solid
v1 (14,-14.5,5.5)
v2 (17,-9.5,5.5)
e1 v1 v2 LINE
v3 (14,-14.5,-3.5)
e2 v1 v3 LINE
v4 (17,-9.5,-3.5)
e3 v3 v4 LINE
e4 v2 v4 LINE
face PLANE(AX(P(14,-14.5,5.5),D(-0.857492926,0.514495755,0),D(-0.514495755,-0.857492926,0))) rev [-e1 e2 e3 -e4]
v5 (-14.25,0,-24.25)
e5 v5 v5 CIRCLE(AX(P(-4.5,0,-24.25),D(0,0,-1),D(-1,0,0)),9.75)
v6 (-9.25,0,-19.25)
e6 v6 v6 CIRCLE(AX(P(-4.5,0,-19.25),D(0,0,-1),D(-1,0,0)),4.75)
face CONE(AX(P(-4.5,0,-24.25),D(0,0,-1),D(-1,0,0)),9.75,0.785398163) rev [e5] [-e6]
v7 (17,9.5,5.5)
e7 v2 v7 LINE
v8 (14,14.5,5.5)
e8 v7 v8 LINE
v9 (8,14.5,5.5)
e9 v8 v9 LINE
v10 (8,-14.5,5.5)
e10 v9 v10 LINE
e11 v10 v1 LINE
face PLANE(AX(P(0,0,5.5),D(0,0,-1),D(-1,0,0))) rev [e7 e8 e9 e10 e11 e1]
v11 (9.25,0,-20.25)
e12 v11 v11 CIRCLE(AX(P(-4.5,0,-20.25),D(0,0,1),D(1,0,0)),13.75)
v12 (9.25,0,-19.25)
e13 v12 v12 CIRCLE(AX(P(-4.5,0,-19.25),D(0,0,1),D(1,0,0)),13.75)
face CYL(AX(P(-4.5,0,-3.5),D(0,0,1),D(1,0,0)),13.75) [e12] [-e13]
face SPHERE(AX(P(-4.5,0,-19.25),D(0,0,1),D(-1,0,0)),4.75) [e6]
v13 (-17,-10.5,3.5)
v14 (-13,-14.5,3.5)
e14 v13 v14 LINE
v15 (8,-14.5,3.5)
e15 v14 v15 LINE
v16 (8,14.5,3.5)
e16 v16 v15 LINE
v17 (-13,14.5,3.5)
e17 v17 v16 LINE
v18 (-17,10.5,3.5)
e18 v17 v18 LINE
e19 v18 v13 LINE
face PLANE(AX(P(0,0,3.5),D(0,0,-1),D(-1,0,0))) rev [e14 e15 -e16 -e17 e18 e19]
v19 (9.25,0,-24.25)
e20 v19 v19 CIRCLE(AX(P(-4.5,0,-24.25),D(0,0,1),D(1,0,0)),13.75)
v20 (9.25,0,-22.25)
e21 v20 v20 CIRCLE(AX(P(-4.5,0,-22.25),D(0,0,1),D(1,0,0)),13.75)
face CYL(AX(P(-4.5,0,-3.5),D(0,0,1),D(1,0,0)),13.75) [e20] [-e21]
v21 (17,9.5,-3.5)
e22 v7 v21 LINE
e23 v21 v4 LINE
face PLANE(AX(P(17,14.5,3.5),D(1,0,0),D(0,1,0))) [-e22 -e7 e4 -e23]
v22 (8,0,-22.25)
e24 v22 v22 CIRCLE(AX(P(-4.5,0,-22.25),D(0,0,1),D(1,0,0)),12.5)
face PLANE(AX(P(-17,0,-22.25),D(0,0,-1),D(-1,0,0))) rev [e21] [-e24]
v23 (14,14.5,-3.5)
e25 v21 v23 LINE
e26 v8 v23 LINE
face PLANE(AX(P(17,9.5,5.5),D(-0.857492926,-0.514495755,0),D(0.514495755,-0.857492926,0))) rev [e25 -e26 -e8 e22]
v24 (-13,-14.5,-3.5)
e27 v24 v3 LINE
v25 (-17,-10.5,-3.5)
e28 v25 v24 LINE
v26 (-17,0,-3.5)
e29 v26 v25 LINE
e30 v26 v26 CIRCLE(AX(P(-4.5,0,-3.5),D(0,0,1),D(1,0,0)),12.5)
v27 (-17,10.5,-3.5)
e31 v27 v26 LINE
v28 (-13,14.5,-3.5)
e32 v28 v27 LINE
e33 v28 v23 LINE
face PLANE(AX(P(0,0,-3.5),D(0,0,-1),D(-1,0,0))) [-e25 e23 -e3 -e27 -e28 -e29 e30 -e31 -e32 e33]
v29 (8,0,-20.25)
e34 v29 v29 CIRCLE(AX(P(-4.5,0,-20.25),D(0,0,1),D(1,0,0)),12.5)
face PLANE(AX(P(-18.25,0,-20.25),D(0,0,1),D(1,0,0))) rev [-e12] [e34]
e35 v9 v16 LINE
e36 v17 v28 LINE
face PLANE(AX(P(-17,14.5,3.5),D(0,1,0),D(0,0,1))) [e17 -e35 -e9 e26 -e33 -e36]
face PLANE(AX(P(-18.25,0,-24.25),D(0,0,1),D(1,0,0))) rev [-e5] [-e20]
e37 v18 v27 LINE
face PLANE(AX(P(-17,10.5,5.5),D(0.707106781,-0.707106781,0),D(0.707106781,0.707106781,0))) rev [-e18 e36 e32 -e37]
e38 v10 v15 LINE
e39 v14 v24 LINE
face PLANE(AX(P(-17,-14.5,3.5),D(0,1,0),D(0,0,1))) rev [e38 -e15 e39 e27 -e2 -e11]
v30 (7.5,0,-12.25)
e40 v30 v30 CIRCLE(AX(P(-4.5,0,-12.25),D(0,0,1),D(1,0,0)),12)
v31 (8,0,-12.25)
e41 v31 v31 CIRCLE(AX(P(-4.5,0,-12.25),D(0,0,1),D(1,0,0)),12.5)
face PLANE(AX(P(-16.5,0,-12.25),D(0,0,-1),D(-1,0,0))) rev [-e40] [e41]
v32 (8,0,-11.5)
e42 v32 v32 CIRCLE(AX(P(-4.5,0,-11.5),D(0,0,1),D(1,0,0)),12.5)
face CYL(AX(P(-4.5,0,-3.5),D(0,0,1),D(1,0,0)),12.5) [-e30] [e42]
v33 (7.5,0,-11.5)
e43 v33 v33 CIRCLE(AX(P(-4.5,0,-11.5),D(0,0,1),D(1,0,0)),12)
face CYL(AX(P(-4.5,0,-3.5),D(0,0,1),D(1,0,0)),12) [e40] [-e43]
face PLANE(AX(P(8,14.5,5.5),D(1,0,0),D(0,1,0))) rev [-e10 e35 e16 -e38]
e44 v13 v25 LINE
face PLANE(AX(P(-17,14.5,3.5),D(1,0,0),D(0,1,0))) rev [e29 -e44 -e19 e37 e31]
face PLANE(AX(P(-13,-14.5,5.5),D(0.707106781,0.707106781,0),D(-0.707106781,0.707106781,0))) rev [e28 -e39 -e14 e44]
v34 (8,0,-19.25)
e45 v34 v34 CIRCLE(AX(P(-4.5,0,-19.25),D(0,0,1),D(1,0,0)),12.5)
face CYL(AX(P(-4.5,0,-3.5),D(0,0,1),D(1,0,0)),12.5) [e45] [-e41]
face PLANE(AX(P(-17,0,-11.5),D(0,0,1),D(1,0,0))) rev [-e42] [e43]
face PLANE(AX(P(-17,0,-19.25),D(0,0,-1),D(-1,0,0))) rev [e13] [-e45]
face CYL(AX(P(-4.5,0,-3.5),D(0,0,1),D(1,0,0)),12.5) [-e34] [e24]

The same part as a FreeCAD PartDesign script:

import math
import FreeCAD as App
import Part
import Sketcher

V = App.Vector
Q = App.Units.Quantity


def faces_at(feature, points):
    """Names of the faces that lie closest to the given points."""
    faces = feature.Shape.Faces
    near = lambda p: min(range(len(faces)), key=lambda i: faces[i].distToShape(Part.Vertex(*p))[0])
    return sorted({f"Face{near(p) + 1}" for p in points})

doc = App.newDocument("Part")
body = doc.addObject("PartDesign::Body", "Body")

# Sketch on XY plane
sketch1 = body.newObject("Sketcher::SketchObject", "Sketch")
sketch1.AttachmentSupport = (doc.getObject("XY_Plane"), [""])
sketch1.MapMode = "FlatFace"
sketch1.addGeometry(Part.LineSegment(V(-17, 14.5, 0), V(-17, -14.5, 0)), False)
sketch1.addGeometry(Part.LineSegment(V(-17, -14.5, 0), V(17, -14.5, 0)), False)
sketch1.addGeometry(Part.LineSegment(V(17, -14.5, 0), V(17, 14.5, 0)), False)
sketch1.addGeometry(Part.LineSegment(V(17, 14.5, 0), V(-17, 14.5, 0)), False)
sketch1.addConstraint(Sketcher.Constraint("Coincident", 0, 2, 1, 1))
sketch1.addConstraint(Sketcher.Constraint("Coincident", 1, 2, 2, 1))
sketch1.addConstraint(Sketcher.Constraint("Coincident", 2, 2, 3, 1))
sketch1.addConstraint(Sketcher.Constraint("Coincident", 3, 2, 0, 1))
sketch1.addConstraint(Sketcher.Constraint("Vertical", 0))
sketch1.addConstraint(Sketcher.Constraint("Horizontal", 1))
sketch1.addConstraint(Sketcher.Constraint("Vertical", 2))
sketch1.addConstraint(Sketcher.Constraint("Horizontal", 3))
sketch1.addConstraint(Sketcher.Constraint("Symmetric", 0, 2, 2, 2, -1, 1))
sketch1.addConstraint(Sketcher.Constraint("DistanceX", 1, 1, 1, 2, Q("34 mm")))
sketch1.addConstraint(Sketcher.Constraint("DistanceY", 0, 2, 0, 1, Q("29 mm")))
pad1 = body.newObject("PartDesign::Pad", "Pad")
pad1.Profile = sketch1
pad1.Length = 7
pad1.Midplane = True

# Sketch on XY plane
sketch2 = body.newObject("Sketcher::SketchObject", "Sketch001")
sketch2.AttachmentSupport = (doc.getObject("XY_Plane"), [""])
sketch2.MapMode = "FlatFace"
sketch2.AttachmentOffset = App.Placement(V(0, 0, 3.5), App.Rotation())
sketch2.addGeometry(Part.LineSegment(V(8, 14.5, 0), V(8, -14.5, 0)), False)
sketch2.addGeometry(Part.LineSegment(V(8, -14.5, 0), V(17, -14.5, 0)), False)
sketch2.addGeometry(Part.LineSegment(V(17, -14.5, 0), V(17, 14.5, 0)), False)
sketch2.addGeometry(Part.LineSegment(V(17, 14.5, 0), V(8, 14.5, 0)), False)
sketch2.addConstraint(Sketcher.Constraint("Coincident", 0, 2, 1, 1))
sketch2.addConstraint(Sketcher.Constraint("Coincident", 1, 2, 2, 1))
sketch2.addConstraint(Sketcher.Constraint("Coincident", 2, 2, 3, 1))
sketch2.addConstraint(Sketcher.Constraint("Coincident", 3, 2, 0, 1))
sketch2.addConstraint(Sketcher.Constraint("Vertical", 0))
sketch2.addConstraint(Sketcher.Constraint("Horizontal", 1))
sketch2.addConstraint(Sketcher.Constraint("Vertical", 2))
sketch2.addConstraint(Sketcher.Constraint("Horizontal", 3))
sketch2.addConstraint(Sketcher.Constraint("DistanceX", 1, 1, 1, 2, Q("9 mm")))
sketch2.addConstraint(Sketcher.Constraint("DistanceY", 0, 2, 0, 1, Q("29 mm")))
sketch2.addConstraint(Sketcher.Constraint("DistanceX", -1, 1, 0, 2, Q("8 mm")))
sketch2.addConstraint(Sketcher.Constraint("DistanceY", 0, 2, -1, 1, Q("14.5 mm")))
pad2 = body.newObject("PartDesign::Pad", "Pad001")
pad2.Profile = sketch2
pad2.Length = 2

# Sketch on XY plane
sketch3 = body.newObject("Sketcher::SketchObject", "Sketch002")
sketch3.AttachmentSupport = (doc.getObject("XY_Plane"), [""])
sketch3.MapMode = "FlatFace"
sketch3.AttachmentOffset = App.Placement(V(0, 0, -3.5), App.Rotation())
sketch3.addGeometry(Part.LineSegment(V(14, -14.5, 0), V(17, -9.5, 0)), False)
sketch3.addGeometry(Part.LineSegment(V(17, -9.5, 0), V(17, -14.5, 0)), False)
sketch3.addGeometry(Part.LineSegment(V(17, -14.5, 0), V(14, -14.5, 0)), False)
sketch3.addGeometry(Part.LineSegment(V(-17, -10.5, 0), V(-13, -14.5, 0)), False)
sketch3.addGeometry(Part.LineSegment(V(-13, -14.5, 0), V(-17, -14.5, 0)), False)
sketch3.addGeometry(Part.LineSegment(V(-17, -14.5, 0), V(-17, -10.5, 0)), False)
sketch3.addGeometry(Part.LineSegment(V(-13, 14.5, 0), V(-17, 10.5, 0)), False)
sketch3.addGeometry(Part.LineSegment(V(-17, 10.5, 0), V(-17, 14.5, 0)), False)
sketch3.addGeometry(Part.LineSegment(V(-17, 14.5, 0), V(-13, 14.5, 0)), False)
sketch3.addGeometry(Part.LineSegment(V(17, 9.5, 0), V(14, 14.5, 0)), False)
sketch3.addGeometry(Part.LineSegment(V(14, 14.5, 0), V(17, 14.5, 0)), False)
sketch3.addGeometry(Part.LineSegment(V(17, 14.5, 0), V(17, 9.5, 0)), False)
sketch3.addConstraint(Sketcher.Constraint("Coincident", 0, 2, 1, 1))
sketch3.addConstraint(Sketcher.Constraint("Coincident", 1, 2, 2, 1))
sketch3.addConstraint(Sketcher.Constraint("Coincident", 2, 2, 0, 1))
sketch3.addConstraint(Sketcher.Constraint("Coincident", 3, 2, 4, 1))
sketch3.addConstraint(Sketcher.Constraint("Coincident", 4, 2, 5, 1))
sketch3.addConstraint(Sketcher.Constraint("Coincident", 5, 2, 3, 1))
sketch3.addConstraint(Sketcher.Constraint("Coincident", 6, 2, 7, 1))
sketch3.addConstraint(Sketcher.Constraint("Coincident", 7, 2, 8, 1))
sketch3.addConstraint(Sketcher.Constraint("Coincident", 8, 2, 6, 1))
sketch3.addConstraint(Sketcher.Constraint("Coincident", 9, 2, 10, 1))
sketch3.addConstraint(Sketcher.Constraint("Coincident", 10, 2, 11, 1))
sketch3.addConstraint(Sketcher.Constraint("Coincident", 11, 2, 9, 1))
sketch3.addConstraint(Sketcher.Constraint("Vertical", 1))
sketch3.addConstraint(Sketcher.Constraint("Horizontal", 2))
sketch3.addConstraint(Sketcher.Constraint("Horizontal", 4))
sketch3.addConstraint(Sketcher.Constraint("Vertical", 5))
sketch3.addConstraint(Sketcher.Constraint("Vertical", 7))
sketch3.addConstraint(Sketcher.Constraint("Horizontal", 8))
sketch3.addConstraint(Sketcher.Constraint("Horizontal", 10))
sketch3.addConstraint(Sketcher.Constraint("Vertical", 11))
sketch3.addConstraint(Sketcher.Constraint("Symmetric", 1, 2, 7, 2, -1, 1))
sketch3.addConstraint(Sketcher.Constraint("Symmetric", 4, 2, 10, 2, -1, 1))
sketch3.addConstraint(Sketcher.Constraint("Symmetric", 1, 2, 4, 2, -2))
sketch3.addConstraint(Sketcher.Constraint("Perpendicular", 3, 6))
sketch3.addConstraint(Sketcher.Constraint("Vertical", 3, 2, 8, 2))
sketch3.addConstraint(Sketcher.Constraint("Vertical", 2, 2, 9, 2))
sketch3.addConstraint(Sketcher.Constraint("Equal", 8, 5))
sketch3.addConstraint(Sketcher.Constraint("Equal", 1, 11))
sketch3.addConstraint(Sketcher.Constraint("DistanceX", 2, 2, 2, 1, Q("3 mm")))
sketch3.addConstraint(Sketcher.Constraint("DistanceX", 4, 2, 4, 1, Q("4 mm")))
sketch3.addConstraint(Sketcher.Constraint("DistanceY", 1, 2, 1, 1, Q("5 mm")))
sketch3.addConstraint(Sketcher.Constraint("DistanceX", -1, 1, 0, 2, Q("17 mm")))
sketch3.addConstraint(Sketcher.Constraint("DistanceY", 5, 2, 6, 2, Q("21 mm")))
pocket1 = body.newObject("PartDesign::Pocket", "Pocket")
pocket1.Profile = sketch3
pocket1.Type = "ThroughAll"
pocket1.Reversed = True

# Sketch on XZ plane
sketch4 = body.newObject("Sketcher::SketchObject", "Sketch003")
sketch4.AttachmentSupport = (doc.getObject("XZ_Plane"), [""])
sketch4.MapMode = "FlatFace"
sketch4.addGeometry(Part.LineSegment(V(-17, -3.5, 0), V(-4.5, -3.5, 0)), False)
sketch4.addGeometry(Part.LineSegment(V(-4.5, -3.5, 0), V(-4.5, -24.25, 0)), False)
sketch4.addGeometry(Part.LineSegment(V(-4.5, -24.25, 0), V(-18.25, -24.25, 0)), False)
sketch4.addGeometry(Part.LineSegment(V(-18.25, -24.25, 0), V(-18.25, -22.25, 0)), False)
sketch4.addGeometry(Part.LineSegment(V(-18.25, -22.25, 0), V(-17, -22.25, 0)), False)
sketch4.addGeometry(Part.LineSegment(V(-17, -22.25, 0), V(-17, -20.25, 0)), False)
sketch4.addGeometry(Part.LineSegment(V(-17, -20.25, 0), V(-18.25, -20.25, 0)), False)
sketch4.addGeometry(Part.LineSegment(V(-18.25, -20.25, 0), V(-18.25, -19.25, 0)), False)
sketch4.addGeometry(Part.LineSegment(V(-18.25, -19.25, 0), V(-17, -19.25, 0)), False)
sketch4.addGeometry(Part.LineSegment(V(-17, -19.25, 0), V(-17, -12.25, 0)), False)
sketch4.addGeometry(Part.LineSegment(V(-17, -12.25, 0), V(-16.5, -12.25, 0)), False)
sketch4.addGeometry(Part.LineSegment(V(-16.5, -12.25, 0), V(-16.5, -11.5, 0)), False)
sketch4.addGeometry(Part.LineSegment(V(-16.5, -11.5, 0), V(-17, -11.5, 0)), False)
sketch4.addGeometry(Part.LineSegment(V(-17, -11.5, 0), V(-17, -3.5, 0)), False)
sketch4.addGeometry(Part.LineSegment(V(-4.5, -3.5, 0), V(-4.5, -24.25, 0)), True)  # axis
sketch4.addConstraint(Sketcher.Constraint("Coincident", 0, 2, 1, 1))
sketch4.addConstraint(Sketcher.Constraint("Coincident", 1, 2, 2, 1))
sketch4.addConstraint(Sketcher.Constraint("Coincident", 2, 2, 3, 1))
sketch4.addConstraint(Sketcher.Constraint("Coincident", 3, 2, 4, 1))
sketch4.addConstraint(Sketcher.Constraint("Coincident", 4, 2, 5, 1))
sketch4.addConstraint(Sketcher.Constraint("Coincident", 5, 2, 6, 1))
sketch4.addConstraint(Sketcher.Constraint("Coincident", 6, 2, 7, 1))
sketch4.addConstraint(Sketcher.Constraint("Coincident", 7, 2, 8, 1))
sketch4.addConstraint(Sketcher.Constraint("Coincident", 8, 2, 9, 1))
sketch4.addConstraint(Sketcher.Constraint("Coincident", 9, 2, 10, 1))
sketch4.addConstraint(Sketcher.Constraint("Coincident", 10, 2, 11, 1))
sketch4.addConstraint(Sketcher.Constraint("Coincident", 11, 2, 12, 1))
sketch4.addConstraint(Sketcher.Constraint("Coincident", 12, 2, 13, 1))
sketch4.addConstraint(Sketcher.Constraint("Coincident", 13, 2, 0, 1))
sketch4.addConstraint(Sketcher.Constraint("Horizontal", 0))
sketch4.addConstraint(Sketcher.Constraint("Vertical", 1))
sketch4.addConstraint(Sketcher.Constraint("Horizontal", 2))
sketch4.addConstraint(Sketcher.Constraint("Vertical", 3))
sketch4.addConstraint(Sketcher.Constraint("Horizontal", 4))
sketch4.addConstraint(Sketcher.Constraint("Vertical", 5))
sketch4.addConstraint(Sketcher.Constraint("Horizontal", 6))
sketch4.addConstraint(Sketcher.Constraint("Vertical", 7))
sketch4.addConstraint(Sketcher.Constraint("Horizontal", 8))
sketch4.addConstraint(Sketcher.Constraint("Vertical", 9))
sketch4.addConstraint(Sketcher.Constraint("Horizontal", 10))
sketch4.addConstraint(Sketcher.Constraint("Vertical", 11))
sketch4.addConstraint(Sketcher.Constraint("Horizontal", 12))
sketch4.addConstraint(Sketcher.Constraint("Vertical", 13))
sketch4.addConstraint(Sketcher.Constraint("Vertical", 14))
sketch4.addConstraint(Sketcher.Constraint("Coincident", 14, 1, 0, 2))
sketch4.addConstraint(Sketcher.Constraint("Horizontal", 2, 2, 14, 2))
sketch4.addConstraint(Sketcher.Constraint("Vertical", 3, 2, 6, 2))
sketch4.addConstraint(Sketcher.Constraint("Vertical", 5, 2, 8, 2))
sketch4.addConstraint(Sketcher.Constraint("Vertical", 9, 2, 12, 2))
sketch4.addConstraint(Sketcher.Constraint("Equal", 3, 5))
sketch4.addConstraint(Sketcher.Constraint("DistanceY", 3, 1, 3, 2, Q("2 mm")))
sketch4.addConstraint(Sketcher.Constraint("DistanceY", 7, 1, 7, 2, Q("1 mm")))
sketch4.addConstraint(Sketcher.Constraint("DistanceY", 9, 1, 9, 2, Q("7 mm")))
sketch4.addConstraint(Sketcher.Constraint("DistanceY", 13, 1, 13, 2, Q("8 mm")))
sketch4.addConstraint(Sketcher.Constraint("DistanceX", 0, 1, 0, 2, Q("12.5 mm")))
sketch4.addConstraint(Sketcher.Constraint("DistanceX", 10, 1, 10, 2, Q("0.5 mm")))
sketch4.addConstraint(Sketcher.Constraint("DistanceX", 4, 2, -1, 1, Q("17 mm")))
sketch4.addConstraint(Sketcher.Constraint("DistanceX", 2, 2, 2, 1, Q("13.75 mm")))
sketch4.addConstraint(Sketcher.Constraint("DistanceY", 1, 2, 1, 1, Q("20.75 mm")))
sketch4.addConstraint(Sketcher.Constraint("DistanceY", 0, 2, -1, 1, Q("3.5 mm")))
revolution = body.newObject("PartDesign::Revolution", "Revolution")
revolution.Profile = sketch4
revolution.ReferenceAxis = (sketch4, ["Axis0"])
revolution.Angle = 360
body2 = doc.addObject("PartDesign::Body", "Body001")

# Sketch on XY plane
sketch5 = body2.newObject("Sketcher::SketchObject", "Sketch004")
sketch5.AttachmentSupport = (doc.getObject("XY_Plane001"), [""])
sketch5.MapMode = "FlatFace"
sketch5.AttachmentOffset = App.Placement(V(0, 0, -24.25), App.Rotation())
sketch5.addGeometry(Part.Circle(V(-4.5, 0, 0), V(0, 0, 1), 9.75), False)
sketch5.addConstraint(Sketcher.Constraint("PointOnObject", 0, 3, -1))
sketch5.addConstraint(Sketcher.Constraint("Diameter", 0, Q("19.5 mm")))
sketch5.addConstraint(Sketcher.Constraint("DistanceX", 0, 3, -1, 1, Q("4.5 mm")))
pad3 = body2.newObject("PartDesign::Pad", "Pad002")
pad3.Profile = sketch5
pad3.Length = 5
doc.recompute()

datumplane = body2.newObject("PartDesign::Plane", "DatumPlane")
datumplane.AttachmentSupport = (doc.getObject("XY_Plane001"), [""])
datumplane.MapMode = "FlatFace"
datumplane.AttachmentOffset = App.Placement(V(0, 0, -24.25), App.Rotation())
draft = body2.newObject("PartDesign::Draft", "Draft")
draft.Base = (pad3, faces_at(pad3, [(5.25, 0, -21.75)]))
draft.NeutralPlane = (datumplane, [""])
draft.Angle = 45
draft.Reversed = False
doc.recompute()

boolean = body.newObject("PartDesign::Boolean", "Boolean")
boolean.Type = "Cut"
boolean.addObjects([body2])

# Sketch on XZ plane
sketch6 = body.newObject("Sketcher::SketchObject", "Sketch005")
sketch6.AttachmentSupport = (doc.getObject("XZ_Plane"), [""])
sketch6.MapMode = "FlatFace"
sketch6.addGeometry(Part.LineSegment(V(-9.25, -19.25, 0), V(-4.5, -19.25, 0)), False)
sketch6.addGeometry(Part.LineSegment(V(-4.5, -19.25, 0), V(-4.5, -24, 0)), False)
sketch6.addGeometry(Part.ArcOfCircle(Part.Circle(V(-4.5, -19.25, 0), V(0, 0, 1), 4.75), math.radians(180), math.radians(270)), False)
sketch6.addGeometry(Part.LineSegment(V(-4.5, -19.25, 0), V(-4.5, -24, 0)), True)  # axis
sketch6.addConstraint(Sketcher.Constraint("Coincident", 0, 2, 1, 1))
sketch6.addConstraint(Sketcher.Constraint("Coincident", 1, 2, 2, 2))
sketch6.addConstraint(Sketcher.Constraint("Coincident", 2, 1, 0, 1))
sketch6.addConstraint(Sketcher.Constraint("Horizontal", 0))
sketch6.addConstraint(Sketcher.Constraint("Vertical", 1))
sketch6.addConstraint(Sketcher.Constraint("Vertical", 3))
sketch6.addConstraint(Sketcher.Constraint("Coincident", 0, 2, 2, 3))
sketch6.addConstraint(Sketcher.Constraint("Coincident", 3, 1, 2, 3))
sketch6.addConstraint(Sketcher.Constraint("Equal", 1, 3))
sketch6.addConstraint(Sketcher.Constraint("Radius", 2, Q("4.75 mm")))
sketch6.addConstraint(Sketcher.Constraint("DistanceY", 1, 2, -1, 1, Q("24 mm")))
sketch6.addConstraint(Sketcher.Constraint("DistanceX", 2, 3, -1, 1, Q("4.5 mm")))
revolution2 = body.newObject("PartDesign::Revolution", "Revolution001")
revolution2.Profile = sketch6
revolution2.ReferenceAxis = (sketch6, ["Axis0"])
revolution2.Angle = 360

doc.recompute()
